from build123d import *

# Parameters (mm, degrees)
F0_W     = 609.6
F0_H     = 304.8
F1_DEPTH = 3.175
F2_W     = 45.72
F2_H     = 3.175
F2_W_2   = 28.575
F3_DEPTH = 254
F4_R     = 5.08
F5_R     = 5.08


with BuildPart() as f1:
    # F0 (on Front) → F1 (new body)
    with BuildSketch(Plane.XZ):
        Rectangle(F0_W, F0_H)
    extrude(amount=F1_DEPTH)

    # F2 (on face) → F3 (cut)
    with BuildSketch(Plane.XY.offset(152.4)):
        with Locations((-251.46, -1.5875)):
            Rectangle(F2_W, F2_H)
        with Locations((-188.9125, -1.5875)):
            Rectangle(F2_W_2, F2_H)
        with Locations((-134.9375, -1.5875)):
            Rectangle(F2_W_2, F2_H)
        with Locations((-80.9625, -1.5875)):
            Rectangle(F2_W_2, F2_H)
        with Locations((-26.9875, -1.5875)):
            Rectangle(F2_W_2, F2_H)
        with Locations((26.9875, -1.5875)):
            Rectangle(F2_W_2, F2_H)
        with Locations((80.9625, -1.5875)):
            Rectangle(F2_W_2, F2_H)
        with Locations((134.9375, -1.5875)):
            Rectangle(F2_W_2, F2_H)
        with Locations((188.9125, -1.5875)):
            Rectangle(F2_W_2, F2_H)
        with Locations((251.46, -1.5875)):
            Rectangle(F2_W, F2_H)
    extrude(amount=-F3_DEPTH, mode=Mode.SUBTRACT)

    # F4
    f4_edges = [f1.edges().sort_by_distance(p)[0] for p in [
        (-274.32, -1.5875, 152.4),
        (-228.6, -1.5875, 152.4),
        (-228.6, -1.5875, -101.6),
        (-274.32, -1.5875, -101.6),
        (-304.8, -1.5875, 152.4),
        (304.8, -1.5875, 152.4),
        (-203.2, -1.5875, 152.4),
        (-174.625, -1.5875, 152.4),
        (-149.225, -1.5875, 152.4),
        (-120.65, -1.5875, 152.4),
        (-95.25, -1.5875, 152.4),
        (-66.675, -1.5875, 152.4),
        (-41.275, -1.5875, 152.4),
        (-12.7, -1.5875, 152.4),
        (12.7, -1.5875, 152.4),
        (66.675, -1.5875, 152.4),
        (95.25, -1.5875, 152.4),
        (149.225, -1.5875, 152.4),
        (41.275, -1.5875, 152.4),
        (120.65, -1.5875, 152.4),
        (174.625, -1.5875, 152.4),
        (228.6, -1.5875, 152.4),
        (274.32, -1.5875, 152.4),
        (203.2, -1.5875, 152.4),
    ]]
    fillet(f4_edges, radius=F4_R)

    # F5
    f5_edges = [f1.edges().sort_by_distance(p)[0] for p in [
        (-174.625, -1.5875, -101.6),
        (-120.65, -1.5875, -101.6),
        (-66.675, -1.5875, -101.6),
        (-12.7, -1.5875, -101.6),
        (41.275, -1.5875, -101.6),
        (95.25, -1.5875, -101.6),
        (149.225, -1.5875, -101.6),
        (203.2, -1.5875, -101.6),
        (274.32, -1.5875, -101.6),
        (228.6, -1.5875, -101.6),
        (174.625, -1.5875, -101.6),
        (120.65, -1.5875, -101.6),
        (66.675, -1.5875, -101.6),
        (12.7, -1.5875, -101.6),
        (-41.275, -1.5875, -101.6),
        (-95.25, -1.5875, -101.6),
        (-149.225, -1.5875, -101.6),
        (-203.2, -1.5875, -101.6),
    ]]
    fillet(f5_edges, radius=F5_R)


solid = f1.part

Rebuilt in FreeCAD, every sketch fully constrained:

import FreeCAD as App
import Part
import Sketcher

V = App.Vector
Q = App.Units.Quantity


def edges_at(feature, points):
    """Names of the edges that pass closest to the given points."""
    edges = feature.Shape.Edges
    near = lambda p: min(range(len(edges)), key=lambda i: edges[i].distToShape(Part.Vertex(*p))[0])
    return sorted({f"Edge{near(p) + 1}" for p in points})


def add_polygon(sketch, points):
    """Adds a closed chain of lines whose ends are joined by coincident constraints."""
    first, n = sketch.GeometryCount, len(points)
    for a, b in zip(points, points[1:] + points[:1]):
        sketch.addGeometry(Part.LineSegment(App.Vector(*a, 0), App.Vector(*b, 0)), False)
    for i in range(n):
        sketch.addConstraint(Sketcher.Constraint("Coincident", first + i, 2, first + (i + 1) % n, 1))

doc = App.newDocument("Part")
body = doc.addObject("PartDesign::Body", "Body")

sketch1 = body.newObject("Sketcher::SketchObject", "Sketch")
sketch1.AttachmentSupport = (doc.getObject("XZ_Plane"), [""])
sketch1.MapMode = "FlatFace"
add_polygon(sketch1, [(-304.8, 152.4), (-304.8, -152.4), (304.8, -152.4), (304.8, 152.4)])
sketch1.addConstraint([
    Sketcher.Constraint("Vertical", 0),
    Sketcher.Constraint("Horizontal", 1),
    Sketcher.Constraint("Vertical", 2),
    Sketcher.Constraint("Horizontal", 3),
    Sketcher.Constraint("Symmetric", 0, 2, 2, 2, -1, 1),
    Sketcher.Constraint("DistanceX", 1, 1, 1, 2, Q("24 in")),
    Sketcher.Constraint("DistanceY", 0, 2, 0, 1, Q("12 in")),
])
pad1 = body.newObject("PartDesign::Pad", "Pad")
pad1.Profile = sketch1
pad1.Length = Q("0.125 in")

sketch2 = body.newObject("Sketcher::SketchObject", "Sketch001")
sketch2.AttachmentSupport = (doc.getObject("XY_Plane"), [""])
sketch2.MapMode = "FlatFace"
sketch2.AttachmentOffset = App.Placement(V(0, 0, 6 * 25.4), App.Rotation())
add_polygon(sketch2, [(-274.32, 0), (-274.32, -3.175), (-228.6, -3.175), (-228.6, 0)])
add_polygon(sketch2, [(-203.2, 0), (-203.2, -3.175), (-174.625, -3.175), (-174.625, 0)])
add_polygon(sketch2, [(-149.225, 0), (-149.225, -3.175), (-120.65, -3.175), (-120.65, 0)])
add_polygon(sketch2, [(-95.25, 0), (-95.25, -3.175), (-66.675, -3.175), (-66.675, 0)])
add_polygon(sketch2, [(-41.275, 0), (-41.275, -3.175), (-12.7, -3.175), (-12.7, 0)])
add_polygon(sketch2, [(12.7, 0), (12.7, -3.175), (41.275, -3.175), (41.275, 0)])
add_polygon(sketch2, [(66.675, 0), (66.675, -3.175), (95.25, -3.175), (95.25, 0)])
add_polygon(sketch2, [(120.65, 0), (120.65, -3.175), (149.225, -3.175), (149.225, 0)])
add_polygon(sketch2, [(174.625, 0), (174.625, -3.175), (203.2, -3.175), (203.2, 0)])
add_polygon(sketch2, [(228.6, 0), (228.6, -3.175), (274.32, -3.175), (274.32, 0)])
sketch2.addConstraint([
    Sketcher.Constraint("Vertical", 0),
    Sketcher.Constraint("Horizontal", 1),
    Sketcher.Constraint("Vertical", 2),
    Sketcher.Constraint("Horizontal", 3),
    Sketcher.Constraint("Vertical", 4),
    Sketcher.Constraint("Horizontal", 5),
    Sketcher.Constraint("Vertical", 6),
    Sketcher.Constraint("Horizontal", 7),
    Sketcher.Constraint("Vertical", 8),
    Sketcher.Constraint("Horizontal", 9),
    Sketcher.Constraint("Vertical", 10),
    Sketcher.Constraint("Horizontal", 11),
    Sketcher.Constraint("Vertical", 12),
    Sketcher.Constraint("Horizontal", 13),
    Sketcher.Constraint("Vertical", 14),
    Sketcher.Constraint("Horizontal", 15),
    Sketcher.Constraint("Vertical", 16),
    Sketcher.Constraint("Horizontal", 17),
    Sketcher.Constraint("Vertical", 18),
    Sketcher.Constraint("Horizontal", 19),
    Sketcher.Constraint("Vertical", 20),
    Sketcher.Constraint("Horizontal", 21),
    Sketcher.Constraint("Vertical", 22),
    Sketcher.Constraint("Horizontal", 23),
    Sketcher.Constraint("Vertical", 24),
    Sketcher.Constraint("Horizontal", 25),
    Sketcher.Constraint("Vertical", 26),
    Sketcher.Constraint("Horizontal", 27),
    Sketcher.Constraint("Vertical", 28),
    Sketcher.Constraint("Horizontal", 29),
    Sketcher.Constraint("Vertical", 30),
    Sketcher.Constraint("Horizontal", 31),
    Sketcher.Constraint("Vertical", 32),
    Sketcher.Constraint("Horizontal", 33),
    Sketcher.Constraint("Vertical", 34),
    Sketcher.Constraint("Horizontal", 35),
    Sketcher.Constraint("Vertical", 36),
    Sketcher.Constraint("Horizontal", 37),
    Sketcher.Constraint("Vertical", 38),
    Sketcher.Constraint("Horizontal", 39),
    Sketcher.Constraint("Symmetric", 19, 2, 22, 2, -1, 1),
    Sketcher.Constraint("Symmetric", 15, 2, 26, 2, -1, 1),
    Sketcher.Constraint("Symmetric", 11, 2, 30, 2, -1, 1),
    Sketcher.Constraint("Symmetric", 7, 2, 34, 2, -1, 1),
    Sketcher.Constraint("Symmetric", 3, 2, 38, 2, -1, 1),
    Sketcher.Constraint("Symmetric", 17, 2, 20, 2, -2),
    Sketcher.Constraint("Symmetric", 13, 2, 24, 2, -2),
    Sketcher.Constraint("Symmetric", 9, 2, 28, 2, -2),
    Sketcher.Constraint("Symmetric", 5, 2, 32, 2, -2),
    Sketcher.Constraint("Symmetric", 1, 2, 36, 2, -2),
    Sketcher.Constraint("PointOnObject", 2, 2, -1),
    Sketcher.Constraint("PointOnObject", 6, 2, -1),
    Sketcher.Constraint("PointOnObject", 10, 2, -1),
    Sketcher.Constraint("PointOnObject", 14, 2, -1),
    Sketcher.Constraint("PointOnObject", 18, 2, -1),
    Sketcher.Constraint("Horizontal", 1, 2, 4, 2),
    Sketcher.Constraint("Horizontal", 5, 2, 8, 2),
    Sketcher.Constraint("Horizontal", 9, 2, 12, 2),
    Sketcher.Constraint("Horizontal", 13, 2, 16, 2),
    Sketcher.Constraint("Equal", 7, 9),
    Sketcher.Constraint("Equal", 11, 13),
    Sketcher.Constraint("Equal", 15, 17),
    Sketcher.Constraint("DistanceX", 1, 1, 1, 2, Q("1.8 in")),
    Sketcher.Constraint("DistanceX", 1, 2, -1, 1, Q("9 in")),
    Sketcher.Constraint("DistanceX", 4, 2, -1, 1, Q("8 in")),
    Sketcher.Constraint("DistanceX", 5, 2, 8, 2, Q("1 in")),
    Sketcher.Constraint("DistanceX", 9, 2, 12, 2, Q("1 in")),
    Sketcher.Constraint("DistanceX", 13, 2, 16, 2, Q("1 in")),
    Sketcher.Constraint("DistanceX", 17, 2, 20, 2, Q("1 in")),
    Sketcher.Constraint("DistanceY", 0, 2, 0, 1, Q("0.125 in")),
])
pocket1 = body.newObject("PartDesign::Pocket", "Pocket")
pocket1.Profile = sketch2
pocket1.Length = Q("10 in")
doc.recompute()

fillet = body.newObject("PartDesign::Fillet", "Fillet")
fillet.Base = (pocket1, edges_at(pocket1, [
    (-274.32, -1.587, 152.4),
    (-228.6, -1.587, 152.4),
    (-228.6, -1.587, -101.6),
    (-274.32, -1.587, -101.6),
    (-304.8, -1.587, 152.4),
    (304.8, -1.587, 152.4),
    (-203.2, -1.587, 152.4),
    (-174.625, -1.587, 152.4),
    (-149.225, -1.587, 152.4),
    (-120.65, -1.587, 152.4),
    (-95.25, -1.587, 152.4),
    (-66.675, -1.587, 152.4),
    (-41.275, -1.587, 152.4),
    (-12.7, -1.587, 152.4),
    (12.7, -1.587, 152.4),
    (66.675, -1.587, 152.4),
    (95.25, -1.587, 152.4),
    (149.225, -1.587, 152.4),
    (41.275, -1.587, 152.4),
    (120.65, -1.587, 152.4),
    (174.625, -1.587, 152.4),
    (228.6, -1.587, 152.4),
    (274.32, -1.587, 152.4),
    (203.2, -1.587, 152.4),
]))
fillet.Radius = Q("0.2 in")
doc.recompute()

fillet2 = body.newObject("PartDesign::Fillet", "Fillet001")
fillet2.Base = (fillet, edges_at(fillet, [
    (-174.625, -1.587, -101.6),
    (-120.65, -1.587, -101.6),
    (-66.675, -1.587, -101.6),
    (-12.7, -1.587, -101.6),
    (41.275, -1.587, -101.6),
    (95.25, -1.587, -101.6),
    (149.225, -1.587, -101.6),
    (203.2, -1.587, -101.6),
    (274.32, -1.587, -101.6),
    (228.6, -1.587, -101.6),
    (174.625, -1.587, -101.6),
    (120.65, -1.587, -101.6),
    (66.675, -1.587, -101.6),
    (12.7, -1.587, -101.6),
    (-41.275, -1.587, -101.6),
    (-95.25, -1.587, -101.6),
    (-149.225, -1.587, -101.6),
    (-203.2, -1.587, -101.6),
]))
fillet2.Radius = Q("0.2 in")

doc.recompute()
